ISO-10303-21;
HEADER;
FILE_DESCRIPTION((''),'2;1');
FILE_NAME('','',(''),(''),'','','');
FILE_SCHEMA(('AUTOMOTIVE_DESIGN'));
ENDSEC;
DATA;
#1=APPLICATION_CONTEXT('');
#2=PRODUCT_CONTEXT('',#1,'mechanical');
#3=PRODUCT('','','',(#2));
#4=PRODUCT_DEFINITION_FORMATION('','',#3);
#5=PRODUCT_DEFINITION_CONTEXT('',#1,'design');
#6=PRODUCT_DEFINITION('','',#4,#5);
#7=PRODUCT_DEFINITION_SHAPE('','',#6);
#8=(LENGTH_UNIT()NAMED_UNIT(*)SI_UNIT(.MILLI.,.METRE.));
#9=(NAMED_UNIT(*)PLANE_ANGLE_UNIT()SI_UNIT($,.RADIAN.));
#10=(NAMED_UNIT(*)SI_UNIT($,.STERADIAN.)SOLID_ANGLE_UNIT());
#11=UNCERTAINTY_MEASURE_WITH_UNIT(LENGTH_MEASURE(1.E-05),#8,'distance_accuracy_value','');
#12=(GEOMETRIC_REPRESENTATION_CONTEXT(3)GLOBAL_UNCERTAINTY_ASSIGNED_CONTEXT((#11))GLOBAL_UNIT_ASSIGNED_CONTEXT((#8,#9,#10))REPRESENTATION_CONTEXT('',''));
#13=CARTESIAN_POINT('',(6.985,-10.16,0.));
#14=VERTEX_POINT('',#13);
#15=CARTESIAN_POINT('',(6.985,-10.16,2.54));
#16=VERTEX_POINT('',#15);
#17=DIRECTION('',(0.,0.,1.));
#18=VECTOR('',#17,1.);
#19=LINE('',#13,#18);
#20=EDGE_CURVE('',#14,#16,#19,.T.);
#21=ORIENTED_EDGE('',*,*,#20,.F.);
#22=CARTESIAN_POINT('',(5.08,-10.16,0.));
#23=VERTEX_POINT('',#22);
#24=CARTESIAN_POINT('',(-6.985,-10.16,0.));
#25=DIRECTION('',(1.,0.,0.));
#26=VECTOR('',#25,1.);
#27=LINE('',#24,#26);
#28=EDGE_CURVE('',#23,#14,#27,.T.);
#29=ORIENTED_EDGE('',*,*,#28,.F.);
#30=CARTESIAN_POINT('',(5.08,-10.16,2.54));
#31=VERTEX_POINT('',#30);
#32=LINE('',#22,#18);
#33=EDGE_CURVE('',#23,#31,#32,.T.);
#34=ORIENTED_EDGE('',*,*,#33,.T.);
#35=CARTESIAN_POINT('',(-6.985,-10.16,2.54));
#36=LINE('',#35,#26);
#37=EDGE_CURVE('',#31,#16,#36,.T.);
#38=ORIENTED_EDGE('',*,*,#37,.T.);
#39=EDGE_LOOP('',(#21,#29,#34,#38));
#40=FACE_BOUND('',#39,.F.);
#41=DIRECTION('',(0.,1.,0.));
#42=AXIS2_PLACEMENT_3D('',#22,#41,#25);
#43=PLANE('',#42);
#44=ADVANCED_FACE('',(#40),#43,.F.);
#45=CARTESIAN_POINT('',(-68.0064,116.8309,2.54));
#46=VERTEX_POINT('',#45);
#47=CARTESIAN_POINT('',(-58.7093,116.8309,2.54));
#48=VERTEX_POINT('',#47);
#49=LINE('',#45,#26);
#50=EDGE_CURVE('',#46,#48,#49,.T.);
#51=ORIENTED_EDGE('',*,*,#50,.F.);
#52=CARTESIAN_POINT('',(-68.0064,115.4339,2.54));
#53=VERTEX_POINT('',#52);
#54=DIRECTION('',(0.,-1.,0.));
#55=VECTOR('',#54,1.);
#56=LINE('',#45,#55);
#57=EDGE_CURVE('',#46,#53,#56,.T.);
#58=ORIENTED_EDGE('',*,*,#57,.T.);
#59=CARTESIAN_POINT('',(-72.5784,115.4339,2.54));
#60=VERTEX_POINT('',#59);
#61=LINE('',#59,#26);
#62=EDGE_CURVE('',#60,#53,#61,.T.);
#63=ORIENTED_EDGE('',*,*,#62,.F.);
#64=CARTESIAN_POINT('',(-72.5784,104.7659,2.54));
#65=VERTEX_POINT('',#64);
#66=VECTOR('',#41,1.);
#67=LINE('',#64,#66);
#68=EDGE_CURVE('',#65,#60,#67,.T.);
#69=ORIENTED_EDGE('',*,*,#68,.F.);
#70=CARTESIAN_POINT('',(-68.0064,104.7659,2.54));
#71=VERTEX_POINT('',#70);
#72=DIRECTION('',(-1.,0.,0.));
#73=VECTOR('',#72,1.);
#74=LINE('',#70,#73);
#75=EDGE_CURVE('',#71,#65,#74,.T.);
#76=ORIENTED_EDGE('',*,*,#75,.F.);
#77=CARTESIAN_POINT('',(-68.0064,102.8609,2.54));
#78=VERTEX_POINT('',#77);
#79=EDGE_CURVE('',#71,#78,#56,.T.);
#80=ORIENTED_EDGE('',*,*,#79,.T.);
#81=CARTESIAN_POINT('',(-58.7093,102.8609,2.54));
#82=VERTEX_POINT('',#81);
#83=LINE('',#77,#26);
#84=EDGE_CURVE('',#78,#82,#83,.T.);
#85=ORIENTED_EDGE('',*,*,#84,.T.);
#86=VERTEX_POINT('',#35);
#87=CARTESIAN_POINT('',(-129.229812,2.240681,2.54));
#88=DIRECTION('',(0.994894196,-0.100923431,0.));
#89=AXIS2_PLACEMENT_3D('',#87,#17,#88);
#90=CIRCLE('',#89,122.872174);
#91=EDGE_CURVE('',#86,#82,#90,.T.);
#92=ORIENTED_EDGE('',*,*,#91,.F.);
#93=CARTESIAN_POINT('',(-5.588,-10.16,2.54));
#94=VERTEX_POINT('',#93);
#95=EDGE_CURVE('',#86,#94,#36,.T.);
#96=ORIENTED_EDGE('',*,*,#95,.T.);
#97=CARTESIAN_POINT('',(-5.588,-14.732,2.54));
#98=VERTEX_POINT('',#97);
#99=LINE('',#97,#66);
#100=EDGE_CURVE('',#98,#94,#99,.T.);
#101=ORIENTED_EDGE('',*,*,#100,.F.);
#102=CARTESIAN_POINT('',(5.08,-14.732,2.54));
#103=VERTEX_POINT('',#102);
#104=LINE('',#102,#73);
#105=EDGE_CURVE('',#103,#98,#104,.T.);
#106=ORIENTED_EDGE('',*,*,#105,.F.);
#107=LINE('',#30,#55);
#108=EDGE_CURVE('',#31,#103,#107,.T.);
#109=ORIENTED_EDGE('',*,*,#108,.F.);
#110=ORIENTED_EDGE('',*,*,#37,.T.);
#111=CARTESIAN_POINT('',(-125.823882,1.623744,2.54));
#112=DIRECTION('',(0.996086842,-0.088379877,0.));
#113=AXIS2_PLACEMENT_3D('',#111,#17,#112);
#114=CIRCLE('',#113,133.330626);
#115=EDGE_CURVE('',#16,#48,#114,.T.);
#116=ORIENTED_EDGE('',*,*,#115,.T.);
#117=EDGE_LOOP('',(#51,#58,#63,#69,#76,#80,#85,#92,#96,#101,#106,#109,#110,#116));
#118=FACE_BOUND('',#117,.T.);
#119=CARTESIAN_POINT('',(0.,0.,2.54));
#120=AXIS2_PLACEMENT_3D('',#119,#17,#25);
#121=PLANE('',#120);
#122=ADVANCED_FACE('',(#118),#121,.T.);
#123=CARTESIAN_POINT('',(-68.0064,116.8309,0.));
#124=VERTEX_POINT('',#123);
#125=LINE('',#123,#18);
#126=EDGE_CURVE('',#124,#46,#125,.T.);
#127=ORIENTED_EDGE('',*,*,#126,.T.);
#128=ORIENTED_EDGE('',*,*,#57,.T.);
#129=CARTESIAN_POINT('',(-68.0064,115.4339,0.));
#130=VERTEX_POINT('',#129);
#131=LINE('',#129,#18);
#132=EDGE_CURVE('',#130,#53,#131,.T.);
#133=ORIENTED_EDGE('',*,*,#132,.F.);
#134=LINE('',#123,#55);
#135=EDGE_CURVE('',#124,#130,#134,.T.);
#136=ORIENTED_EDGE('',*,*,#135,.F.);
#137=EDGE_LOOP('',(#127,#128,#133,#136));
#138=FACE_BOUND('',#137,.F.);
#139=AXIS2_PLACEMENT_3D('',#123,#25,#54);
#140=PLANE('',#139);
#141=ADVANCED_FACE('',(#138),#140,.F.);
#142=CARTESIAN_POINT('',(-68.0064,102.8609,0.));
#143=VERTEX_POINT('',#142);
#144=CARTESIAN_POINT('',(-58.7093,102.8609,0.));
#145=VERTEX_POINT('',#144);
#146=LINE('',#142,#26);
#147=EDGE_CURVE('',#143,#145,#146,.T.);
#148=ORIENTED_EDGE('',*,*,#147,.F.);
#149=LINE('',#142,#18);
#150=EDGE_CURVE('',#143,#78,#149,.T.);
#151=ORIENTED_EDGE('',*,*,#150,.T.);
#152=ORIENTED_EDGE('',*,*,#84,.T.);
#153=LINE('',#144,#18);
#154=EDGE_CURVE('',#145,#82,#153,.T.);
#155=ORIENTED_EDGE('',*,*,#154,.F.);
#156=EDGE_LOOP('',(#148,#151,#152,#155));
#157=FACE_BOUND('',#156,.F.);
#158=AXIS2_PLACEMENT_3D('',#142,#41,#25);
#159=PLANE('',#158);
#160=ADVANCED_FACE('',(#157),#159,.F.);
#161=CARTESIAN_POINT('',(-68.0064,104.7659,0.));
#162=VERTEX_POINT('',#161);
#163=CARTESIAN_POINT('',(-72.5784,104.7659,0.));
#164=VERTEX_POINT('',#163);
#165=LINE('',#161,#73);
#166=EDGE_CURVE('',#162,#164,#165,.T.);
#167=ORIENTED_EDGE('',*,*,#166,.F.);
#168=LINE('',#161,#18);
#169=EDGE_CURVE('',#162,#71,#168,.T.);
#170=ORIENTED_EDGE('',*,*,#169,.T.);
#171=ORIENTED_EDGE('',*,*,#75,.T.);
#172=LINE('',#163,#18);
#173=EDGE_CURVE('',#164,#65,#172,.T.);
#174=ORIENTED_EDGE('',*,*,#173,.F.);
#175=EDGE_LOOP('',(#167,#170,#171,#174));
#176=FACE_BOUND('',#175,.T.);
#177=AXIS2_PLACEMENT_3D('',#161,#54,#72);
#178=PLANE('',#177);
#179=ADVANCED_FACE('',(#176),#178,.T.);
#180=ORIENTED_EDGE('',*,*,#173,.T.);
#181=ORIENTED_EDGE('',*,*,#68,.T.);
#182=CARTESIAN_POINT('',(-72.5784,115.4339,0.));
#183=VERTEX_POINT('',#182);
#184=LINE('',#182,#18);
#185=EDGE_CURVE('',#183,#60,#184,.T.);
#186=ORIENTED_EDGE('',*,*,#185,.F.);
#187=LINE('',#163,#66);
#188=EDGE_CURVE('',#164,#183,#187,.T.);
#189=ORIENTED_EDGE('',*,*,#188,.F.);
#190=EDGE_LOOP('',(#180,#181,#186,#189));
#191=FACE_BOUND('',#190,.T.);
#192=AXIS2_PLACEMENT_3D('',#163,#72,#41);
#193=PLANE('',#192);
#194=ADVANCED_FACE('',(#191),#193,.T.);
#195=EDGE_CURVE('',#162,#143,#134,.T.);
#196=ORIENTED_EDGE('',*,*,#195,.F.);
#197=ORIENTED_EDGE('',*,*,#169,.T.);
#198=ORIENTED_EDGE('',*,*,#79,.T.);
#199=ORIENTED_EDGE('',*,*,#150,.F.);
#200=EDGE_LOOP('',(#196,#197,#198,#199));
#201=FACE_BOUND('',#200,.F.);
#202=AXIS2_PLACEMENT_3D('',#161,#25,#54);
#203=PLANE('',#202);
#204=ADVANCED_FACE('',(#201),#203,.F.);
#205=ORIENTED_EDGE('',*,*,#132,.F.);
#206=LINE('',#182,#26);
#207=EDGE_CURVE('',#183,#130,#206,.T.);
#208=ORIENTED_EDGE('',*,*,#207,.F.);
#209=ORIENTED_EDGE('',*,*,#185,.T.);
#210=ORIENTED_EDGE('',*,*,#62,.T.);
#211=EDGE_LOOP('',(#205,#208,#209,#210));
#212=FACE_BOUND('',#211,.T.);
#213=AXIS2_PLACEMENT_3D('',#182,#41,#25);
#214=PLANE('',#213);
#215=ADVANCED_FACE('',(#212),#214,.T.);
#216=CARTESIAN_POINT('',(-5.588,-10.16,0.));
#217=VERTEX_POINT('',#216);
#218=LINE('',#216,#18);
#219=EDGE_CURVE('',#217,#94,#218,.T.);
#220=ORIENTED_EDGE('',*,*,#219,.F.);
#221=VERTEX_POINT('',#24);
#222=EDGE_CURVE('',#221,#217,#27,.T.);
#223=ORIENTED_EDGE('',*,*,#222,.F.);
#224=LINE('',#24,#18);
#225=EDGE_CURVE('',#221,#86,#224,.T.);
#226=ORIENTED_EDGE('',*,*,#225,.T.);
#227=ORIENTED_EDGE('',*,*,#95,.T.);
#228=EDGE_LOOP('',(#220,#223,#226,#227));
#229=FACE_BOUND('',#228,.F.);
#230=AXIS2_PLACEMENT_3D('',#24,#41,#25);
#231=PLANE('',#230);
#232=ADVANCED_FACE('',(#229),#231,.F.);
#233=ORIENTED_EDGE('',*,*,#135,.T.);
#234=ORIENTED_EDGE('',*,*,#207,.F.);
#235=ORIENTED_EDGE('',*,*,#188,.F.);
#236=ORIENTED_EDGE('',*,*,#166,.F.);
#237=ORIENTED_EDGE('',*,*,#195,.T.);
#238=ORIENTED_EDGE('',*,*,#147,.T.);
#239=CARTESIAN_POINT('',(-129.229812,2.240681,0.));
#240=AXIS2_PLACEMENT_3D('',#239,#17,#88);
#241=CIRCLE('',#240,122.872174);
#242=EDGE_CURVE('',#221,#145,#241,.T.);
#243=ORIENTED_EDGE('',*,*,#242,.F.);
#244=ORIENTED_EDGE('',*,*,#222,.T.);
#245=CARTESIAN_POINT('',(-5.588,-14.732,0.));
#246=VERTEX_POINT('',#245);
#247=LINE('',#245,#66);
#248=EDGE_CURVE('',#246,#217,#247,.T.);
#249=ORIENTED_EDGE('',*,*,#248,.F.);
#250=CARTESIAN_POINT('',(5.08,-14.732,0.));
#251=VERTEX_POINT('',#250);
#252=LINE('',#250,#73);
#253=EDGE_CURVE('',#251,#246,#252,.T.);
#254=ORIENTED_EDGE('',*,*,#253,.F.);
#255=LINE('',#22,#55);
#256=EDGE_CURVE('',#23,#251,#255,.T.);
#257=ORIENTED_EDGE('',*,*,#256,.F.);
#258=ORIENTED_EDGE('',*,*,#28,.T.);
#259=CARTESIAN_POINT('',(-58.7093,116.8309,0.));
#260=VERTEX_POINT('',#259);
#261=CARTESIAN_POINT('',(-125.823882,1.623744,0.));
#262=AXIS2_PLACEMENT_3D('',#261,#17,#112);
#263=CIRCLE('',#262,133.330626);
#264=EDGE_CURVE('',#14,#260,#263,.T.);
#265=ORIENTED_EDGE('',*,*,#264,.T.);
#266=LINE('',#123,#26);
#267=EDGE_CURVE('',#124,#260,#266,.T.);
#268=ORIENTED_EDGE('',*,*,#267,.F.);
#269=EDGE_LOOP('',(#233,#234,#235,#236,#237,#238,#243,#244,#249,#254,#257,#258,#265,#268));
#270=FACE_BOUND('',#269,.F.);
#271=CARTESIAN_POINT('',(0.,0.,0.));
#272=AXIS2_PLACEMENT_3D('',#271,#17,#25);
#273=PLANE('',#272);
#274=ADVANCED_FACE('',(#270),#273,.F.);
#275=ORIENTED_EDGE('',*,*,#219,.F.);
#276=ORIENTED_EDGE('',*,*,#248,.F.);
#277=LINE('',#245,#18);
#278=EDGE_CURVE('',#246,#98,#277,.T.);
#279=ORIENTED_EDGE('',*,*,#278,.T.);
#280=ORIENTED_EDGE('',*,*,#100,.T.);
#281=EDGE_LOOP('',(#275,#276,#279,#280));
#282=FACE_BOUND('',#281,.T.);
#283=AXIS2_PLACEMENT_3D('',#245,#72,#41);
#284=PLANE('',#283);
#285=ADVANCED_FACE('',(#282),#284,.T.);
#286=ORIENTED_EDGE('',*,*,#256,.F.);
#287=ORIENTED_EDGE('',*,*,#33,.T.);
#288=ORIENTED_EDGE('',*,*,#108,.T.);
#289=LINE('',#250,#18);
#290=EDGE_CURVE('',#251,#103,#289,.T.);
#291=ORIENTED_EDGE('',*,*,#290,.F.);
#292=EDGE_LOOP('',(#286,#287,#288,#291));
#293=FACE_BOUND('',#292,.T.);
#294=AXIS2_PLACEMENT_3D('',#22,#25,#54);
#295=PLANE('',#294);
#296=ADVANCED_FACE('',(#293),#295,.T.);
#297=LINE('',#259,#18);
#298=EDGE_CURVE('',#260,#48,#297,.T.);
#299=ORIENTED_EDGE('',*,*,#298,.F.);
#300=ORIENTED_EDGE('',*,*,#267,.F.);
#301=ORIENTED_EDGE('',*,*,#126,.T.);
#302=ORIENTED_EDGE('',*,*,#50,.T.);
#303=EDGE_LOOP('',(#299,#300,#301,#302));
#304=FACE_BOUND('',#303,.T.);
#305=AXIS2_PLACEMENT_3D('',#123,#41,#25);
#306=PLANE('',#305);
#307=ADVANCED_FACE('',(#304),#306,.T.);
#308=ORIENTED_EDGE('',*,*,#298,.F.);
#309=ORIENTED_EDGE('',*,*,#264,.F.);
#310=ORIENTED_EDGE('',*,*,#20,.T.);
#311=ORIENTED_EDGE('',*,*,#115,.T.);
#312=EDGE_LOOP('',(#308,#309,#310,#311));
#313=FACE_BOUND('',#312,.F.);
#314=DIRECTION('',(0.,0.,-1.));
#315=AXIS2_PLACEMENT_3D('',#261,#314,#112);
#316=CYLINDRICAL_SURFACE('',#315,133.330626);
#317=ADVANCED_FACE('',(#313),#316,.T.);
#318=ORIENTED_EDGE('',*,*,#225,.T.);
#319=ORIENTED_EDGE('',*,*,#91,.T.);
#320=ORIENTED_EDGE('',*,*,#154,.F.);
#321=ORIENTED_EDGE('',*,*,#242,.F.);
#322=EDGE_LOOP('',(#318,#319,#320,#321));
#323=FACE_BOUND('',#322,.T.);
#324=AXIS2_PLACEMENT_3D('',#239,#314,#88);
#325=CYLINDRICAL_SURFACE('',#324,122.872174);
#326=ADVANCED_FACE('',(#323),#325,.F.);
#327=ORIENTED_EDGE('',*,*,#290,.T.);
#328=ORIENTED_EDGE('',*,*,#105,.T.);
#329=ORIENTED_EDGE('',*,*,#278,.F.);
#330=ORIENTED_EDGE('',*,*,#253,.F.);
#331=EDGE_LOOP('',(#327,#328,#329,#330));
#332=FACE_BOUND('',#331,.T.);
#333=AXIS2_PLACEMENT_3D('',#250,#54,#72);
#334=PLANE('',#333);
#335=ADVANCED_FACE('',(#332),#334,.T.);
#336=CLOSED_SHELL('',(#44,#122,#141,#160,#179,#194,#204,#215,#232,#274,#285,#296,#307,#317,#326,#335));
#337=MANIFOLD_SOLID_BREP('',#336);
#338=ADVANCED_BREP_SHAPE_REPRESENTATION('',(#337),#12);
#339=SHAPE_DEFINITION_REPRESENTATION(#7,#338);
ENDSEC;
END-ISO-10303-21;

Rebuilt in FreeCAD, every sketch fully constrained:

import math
import FreeCAD as App
import Part
import Sketcher
Q = App.Units.Quantity

doc = App.newDocument("Part")
params = doc.addObject("Spreadsheet::Sheet", "Params")
for row, (alias, value) in enumerate([
    ("sketch1_width", "0.42 in"),
    ("sketch1_width2", "0.18 in"),
    ("pad1_length", "0.1 in"),
], start=1):
    params.set(f"A{row}", alias)
    params.set(f"B{row}", "=" + value)
    params.setAlias(f"B{row}", alias)

body = doc.addObject("PartDesign::Body", "Body")

# Sketch on XY plane
sketch1 = doc.addObject("Sketcher::SketchObject", "Sketch")
body.addObject(sketch1)
sketch1.AttachmentSupport = (doc.XY_Plane, [""])
sketch1.MapMode = "FlatFace"
sketch1.addGeometry(Part.ArcOfCircle(Part.Circle(App.Vector(-129.2, 2.2, 0), App.Vector(0, 0, 1), 122.9), math.radians(-6), math.radians(55)), False)
sketch1.addGeometry(Part.LineSegment(App.Vector(-7, -10.2, 0), App.Vector(-5.6, -10.2, 0)), False)
sketch1.addGeometry(Part.LineSegment(App.Vector(-5.6, -10.2, 0), App.Vector(-5.6, -14.7, 0)), False)
sketch1.addGeometry(Part.LineSegment(App.Vector(-5.6, -14.7, 0), App.Vector(5.1, -14.7, 0)), False)
sketch1.addGeometry(Part.LineSegment(App.Vector(5.1, -14.7, 0), App.Vector(5.1, -10.2, 0)), False)
sketch1.addGeometry(Part.LineSegment(App.Vector(5.1, -10.2, 0), App.Vector(7, -10.2, 0)), False)
sketch1.addGeometry(Part.ArcOfCircle(Part.Circle(App.Vector(-125.8, 1.6, 0), App.Vector(0, 0, 1), 133.3), math.radians(-5), math.radians(60)), False)
sketch1.addGeometry(Part.LineSegment(App.Vector(-58.7, 116.8, 0), App.Vector(-68, 116.8, 0)), False)
sketch1.addGeometry(Part.LineSegment(App.Vector(-68, 116.8, 0), App.Vector(-68, 115.4, 0)), False)
sketch1.addGeometry(Part.LineSegment(App.Vector(-68, 115.4, 0), App.Vector(-72.6, 115.4, 0)), False)
sketch1.addGeometry(Part.LineSegment(App.Vector(-72.6, 115.4, 0), App.Vector(-72.6, 104.8, 0)), False)
sketch1.addGeometry(Part.LineSegment(App.Vector(-72.6, 104.8, 0), App.Vector(-68, 104.8, 0)), False)
sketch1.addGeometry(Part.LineSegment(App.Vector(-68, 104.8, 0), App.Vector(-68, 102.9, 0)), False)
sketch1.addGeometry(Part.LineSegment(App.Vector(-68, 102.9, 0), App.Vector(-58.7, 102.9, 0)), False)
sketch1.addConstraint(Sketcher.Constraint("Coincident", 0, 1, 1, 1))
sketch1.addConstraint(Sketcher.Constraint("Coincident", 1, 2, 2, 1))
sketch1.addConstraint(Sketcher.Constraint("Coincident", 2, 2, 3, 1))
sketch1.addConstraint(Sketcher.Constraint("Coincident", 3, 2, 4, 1))
sketch1.addConstraint(Sketcher.Constraint("Coincident", 4, 2, 5, 1))
sketch1.addConstraint(Sketcher.Constraint("Coincident", 5, 2, 6, 1))
sketch1.addConstraint(Sketcher.Constraint("Coincident", 6, 2, 7, 1))
sketch1.addConstraint(Sketcher.Constraint("Coincident", 7, 2, 8, 1))
sketch1.addConstraint(Sketcher.Constraint("Coincident", 8, 2, 9, 1))
sketch1.addConstraint(Sketcher.Constraint("Coincident", 9, 2, 10, 1))
sketch1.addConstraint(Sketcher.Constraint("Coincident", 10, 2, 11, 1))
sketch1.addConstraint(Sketcher.Constraint("Coincident", 11, 2, 12, 1))
sketch1.addConstraint(Sketcher.Constraint("Coincident", 12, 2, 13, 1))
sketch1.addConstraint(Sketcher.Constraint("Coincident", 13, 2, 0, 2))
sketch1.addConstraint(Sketcher.Constraint("Horizontal", 1))
sketch1.addConstraint(Sketcher.Constraint("Vertical", 2))
sketch1.addConstraint(Sketcher.Constraint("Horizontal", 3))
sketch1.addConstraint(Sketcher.Constraint("Vertical", 4))
sketch1.addConstraint(Sketcher.Constraint("Horizontal", 5))
sketch1.addConstraint(Sketcher.Constraint("Horizontal", 7))
sketch1.addConstraint(Sketcher.Constraint("Vertical", 8))
sketch1.addConstraint(Sketcher.Constraint("Horizontal", 9))
sketch1.addConstraint(Sketcher.Constraint("Vertical", 10))
sketch1.addConstraint(Sketcher.Constraint("Horizontal", 11))
sketch1.addConstraint(Sketcher.Constraint("Vertical", 12))
sketch1.addConstraint(Sketcher.Constraint("Horizontal", 13))
sketch1.addConstraint(Sketcher.Constraint("Symmetric", 0, 1, 5, 2, -2))
sketch1.addConstraint(Sketcher.Constraint("Vertical", 8, 2, 11, 2))
sketch1.addConstraint(Sketcher.Constraint("Vertical", 6, 2, 13, 2))
sketch1.addConstraint(Sketcher.Constraint("Equal", 11, 2))
sketch1.addConstraint(Sketcher.Constraint("Equal", 1, 8))
sketch1.addConstraint(Sketcher.Constraint("Equal", 3, 10))
sketch1.addConstraint(Sketcher.Constraint("Equal", 5, 12))
sketch1.addConstraint(Sketcher.Constraint("DistanceX", 3, 1, 3, 2, Q("0.42 in")))
sketch1.addConstraint(Sketcher.Constraint("DistanceX", 9, 2, 9, 1, Q("0.18 in")))
sketch1.addConstraint(Sketcher.Constraint("DistanceX", 0, 1, 5, 2, Q("0.55 in")))
sketch1.addConstraint(Sketcher.Constraint("DistanceY", 0, 1, -1, 1, Q("0.4 in")))
sketch1.addConstraint(Sketcher.Constraint("DistanceX", -1, 1, 3, 2, Q("0.2 in")))
sketch1.addConstraint(Sketcher.Constraint("Radius", 0, 122.872))
sketch1.addConstraint(Sketcher.Constraint("Radius", 6, 133.3303))
sketch1.addConstraint(Sketcher.Constraint("DistanceX", 7, 2, 7, 1, 9.297))
sketch1.addConstraint(Sketcher.Constraint("DistanceX", 6, 2, -1, 1, Q("2.3114 in")))
sketch1.addConstraint(Sketcher.Constraint("DistanceX", 0, 3, -1, 1, 129.2297))
sketch1.setExpression("Constraints[33]", "Params.sketch1_width")
sketch1.setExpression("Constraints[34]", "Params.sketch1_width2")
pad1 = doc.addObject("PartDesign::Pad", "Pad")
body.addObject(pad1)
pad1.Profile = sketch1
pad1.setExpression("Length", "Params.pad1_length")

doc.recompute()
